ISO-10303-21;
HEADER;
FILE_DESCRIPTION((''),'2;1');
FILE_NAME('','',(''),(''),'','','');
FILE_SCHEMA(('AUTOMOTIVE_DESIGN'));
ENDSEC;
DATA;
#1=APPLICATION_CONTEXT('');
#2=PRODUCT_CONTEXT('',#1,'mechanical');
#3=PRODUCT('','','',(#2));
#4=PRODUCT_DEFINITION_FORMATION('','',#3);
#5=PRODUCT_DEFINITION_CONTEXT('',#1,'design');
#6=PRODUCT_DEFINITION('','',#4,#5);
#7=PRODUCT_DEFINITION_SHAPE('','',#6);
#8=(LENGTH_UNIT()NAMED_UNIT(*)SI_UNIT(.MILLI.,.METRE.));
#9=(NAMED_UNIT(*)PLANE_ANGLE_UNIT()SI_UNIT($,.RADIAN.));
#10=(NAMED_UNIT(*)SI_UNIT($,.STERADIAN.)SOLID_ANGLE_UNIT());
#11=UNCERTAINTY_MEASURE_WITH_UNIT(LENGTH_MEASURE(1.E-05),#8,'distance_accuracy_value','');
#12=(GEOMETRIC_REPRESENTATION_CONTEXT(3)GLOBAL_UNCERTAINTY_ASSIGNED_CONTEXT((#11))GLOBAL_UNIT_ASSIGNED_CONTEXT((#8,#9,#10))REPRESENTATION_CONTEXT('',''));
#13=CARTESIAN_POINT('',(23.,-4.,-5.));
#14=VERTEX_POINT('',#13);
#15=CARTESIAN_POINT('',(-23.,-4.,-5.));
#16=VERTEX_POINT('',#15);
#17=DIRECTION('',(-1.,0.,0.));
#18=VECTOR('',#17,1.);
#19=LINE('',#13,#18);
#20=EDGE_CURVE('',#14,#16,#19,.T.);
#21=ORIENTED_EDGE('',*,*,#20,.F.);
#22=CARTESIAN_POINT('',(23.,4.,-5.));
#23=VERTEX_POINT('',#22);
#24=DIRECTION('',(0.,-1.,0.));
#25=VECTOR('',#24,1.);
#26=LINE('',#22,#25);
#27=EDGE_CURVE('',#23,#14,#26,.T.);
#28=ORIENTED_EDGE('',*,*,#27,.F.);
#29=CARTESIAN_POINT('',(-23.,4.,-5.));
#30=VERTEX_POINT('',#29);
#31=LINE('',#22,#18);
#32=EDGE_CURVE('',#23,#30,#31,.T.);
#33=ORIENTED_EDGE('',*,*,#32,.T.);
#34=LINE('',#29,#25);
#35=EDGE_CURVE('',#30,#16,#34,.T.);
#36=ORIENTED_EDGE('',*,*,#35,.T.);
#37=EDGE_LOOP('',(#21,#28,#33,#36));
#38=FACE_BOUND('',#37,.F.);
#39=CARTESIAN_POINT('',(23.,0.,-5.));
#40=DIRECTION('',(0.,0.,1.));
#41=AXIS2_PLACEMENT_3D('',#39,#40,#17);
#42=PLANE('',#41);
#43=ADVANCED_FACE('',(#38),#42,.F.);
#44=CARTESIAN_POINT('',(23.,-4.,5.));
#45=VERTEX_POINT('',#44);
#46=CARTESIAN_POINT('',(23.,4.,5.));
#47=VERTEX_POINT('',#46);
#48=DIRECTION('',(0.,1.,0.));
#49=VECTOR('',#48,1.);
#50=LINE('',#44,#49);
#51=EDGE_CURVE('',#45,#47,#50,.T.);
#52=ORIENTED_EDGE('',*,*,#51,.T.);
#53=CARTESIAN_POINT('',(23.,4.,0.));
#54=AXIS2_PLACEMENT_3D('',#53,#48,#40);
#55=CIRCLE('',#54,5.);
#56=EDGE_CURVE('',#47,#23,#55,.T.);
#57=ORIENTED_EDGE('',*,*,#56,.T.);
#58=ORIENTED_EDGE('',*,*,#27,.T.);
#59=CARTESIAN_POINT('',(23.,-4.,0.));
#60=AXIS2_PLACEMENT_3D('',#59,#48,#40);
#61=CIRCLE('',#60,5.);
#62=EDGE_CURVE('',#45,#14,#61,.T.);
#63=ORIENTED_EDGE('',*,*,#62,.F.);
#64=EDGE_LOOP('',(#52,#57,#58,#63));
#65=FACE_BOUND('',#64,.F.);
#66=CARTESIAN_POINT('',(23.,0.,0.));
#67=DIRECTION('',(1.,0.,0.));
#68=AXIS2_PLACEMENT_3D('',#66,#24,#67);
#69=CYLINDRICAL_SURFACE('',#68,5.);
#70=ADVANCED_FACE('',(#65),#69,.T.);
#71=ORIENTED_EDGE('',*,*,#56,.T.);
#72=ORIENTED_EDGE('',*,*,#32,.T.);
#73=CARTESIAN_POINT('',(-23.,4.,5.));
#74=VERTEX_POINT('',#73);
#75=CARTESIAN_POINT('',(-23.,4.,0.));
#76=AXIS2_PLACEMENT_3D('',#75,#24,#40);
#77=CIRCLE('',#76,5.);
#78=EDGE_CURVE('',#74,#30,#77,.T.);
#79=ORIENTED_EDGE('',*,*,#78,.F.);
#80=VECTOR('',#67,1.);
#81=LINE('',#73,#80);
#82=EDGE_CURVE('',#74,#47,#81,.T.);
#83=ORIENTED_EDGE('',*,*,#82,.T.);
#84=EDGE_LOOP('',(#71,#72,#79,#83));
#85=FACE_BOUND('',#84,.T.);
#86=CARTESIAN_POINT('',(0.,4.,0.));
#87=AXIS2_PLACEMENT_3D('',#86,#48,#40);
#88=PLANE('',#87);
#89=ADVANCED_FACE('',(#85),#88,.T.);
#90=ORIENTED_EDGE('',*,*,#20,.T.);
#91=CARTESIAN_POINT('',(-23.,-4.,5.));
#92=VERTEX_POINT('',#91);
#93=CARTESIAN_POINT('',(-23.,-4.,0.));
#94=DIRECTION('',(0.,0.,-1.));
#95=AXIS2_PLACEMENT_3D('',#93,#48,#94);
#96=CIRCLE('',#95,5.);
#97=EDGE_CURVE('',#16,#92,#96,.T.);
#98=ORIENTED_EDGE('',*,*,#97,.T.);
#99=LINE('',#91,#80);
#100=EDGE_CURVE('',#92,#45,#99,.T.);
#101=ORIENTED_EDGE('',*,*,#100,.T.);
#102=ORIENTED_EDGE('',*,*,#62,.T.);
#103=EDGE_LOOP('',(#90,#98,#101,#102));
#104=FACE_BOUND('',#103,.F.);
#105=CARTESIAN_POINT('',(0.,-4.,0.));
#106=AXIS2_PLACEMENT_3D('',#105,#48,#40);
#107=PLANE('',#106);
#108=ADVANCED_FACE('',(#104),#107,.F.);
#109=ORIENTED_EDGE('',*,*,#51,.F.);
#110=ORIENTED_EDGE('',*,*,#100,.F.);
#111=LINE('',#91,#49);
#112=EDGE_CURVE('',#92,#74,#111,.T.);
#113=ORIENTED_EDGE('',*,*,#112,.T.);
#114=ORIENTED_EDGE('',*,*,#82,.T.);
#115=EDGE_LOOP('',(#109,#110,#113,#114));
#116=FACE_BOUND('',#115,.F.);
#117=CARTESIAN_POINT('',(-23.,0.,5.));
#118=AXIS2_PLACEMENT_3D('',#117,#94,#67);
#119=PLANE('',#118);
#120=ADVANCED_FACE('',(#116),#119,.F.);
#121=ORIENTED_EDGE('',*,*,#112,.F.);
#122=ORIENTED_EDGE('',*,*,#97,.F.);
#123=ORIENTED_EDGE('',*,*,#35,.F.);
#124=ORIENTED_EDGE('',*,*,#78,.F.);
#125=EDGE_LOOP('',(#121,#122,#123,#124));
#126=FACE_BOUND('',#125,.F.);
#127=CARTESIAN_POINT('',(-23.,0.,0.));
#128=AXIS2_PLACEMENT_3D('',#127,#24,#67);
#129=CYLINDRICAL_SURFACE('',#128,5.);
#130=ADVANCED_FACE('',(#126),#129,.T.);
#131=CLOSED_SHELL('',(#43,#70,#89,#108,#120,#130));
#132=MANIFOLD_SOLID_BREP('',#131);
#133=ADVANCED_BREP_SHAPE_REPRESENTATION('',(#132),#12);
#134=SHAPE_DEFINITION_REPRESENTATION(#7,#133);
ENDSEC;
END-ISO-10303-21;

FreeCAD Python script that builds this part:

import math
import FreeCAD as App
import Part
import Sketcher
from FreeCAD import Vector

doc = App.newDocument("Part")
body = doc.addObject("PartDesign::Body", "Body")

sketch1 = body.newObject("Sketcher::SketchObject", "Sketch")
sketch1.AttachmentSupport = (doc.getObject("XZ_Plane"), [""])
sketch1.MapMode = "FlatFace"
sketch1.addGeometry([
    Part.ArcOfCircle(Part.Circle(Vector(-23, 0, 0), Vector(0, 0, 1), 5), math.radians(90), math.radians(270)),
    Part.LineSegment(Vector(-23, -5, 0), Vector(23, -5, 0)),
    Part.ArcOfCircle(Part.Circle(Vector(23, 0, 0), Vector(0, 0, 1), 5), math.radians(-90), math.radians(90)),
    Part.LineSegment(Vector(23, 5, 0), Vector(-23, 5, 0)),
], False)
sketch1.addConstraint([
    Sketcher.Constraint("Tangent", 0, 2, 1, 1),
    Sketcher.Constraint("Tangent", 1, 2, 2, 1),
    Sketcher.Constraint("Tangent", 2, 2, 3, 1),
    Sketcher.Constraint("Tangent", 3, 2, 0, 1),
    Sketcher.Constraint("Horizontal", 1),
    Sketcher.Constraint("Horizontal", 3),
    Sketcher.Constraint("Symmetric", 0, 3, 2, 3, -1, 1),
    Sketcher.Constraint("Radius", 0, 5.0),
    Sketcher.Constraint("DistanceX", 1, 1, 1, 2, 46.0),
])
pad1 = body.newObject("PartDesign::Pad", "Pad")
pad1.Profile = sketch1
pad1.Type = "TwoLengths"
pad1.Length = 4
pad1.Length2 = 4
pad1.Reversed = True

doc.recompute()
